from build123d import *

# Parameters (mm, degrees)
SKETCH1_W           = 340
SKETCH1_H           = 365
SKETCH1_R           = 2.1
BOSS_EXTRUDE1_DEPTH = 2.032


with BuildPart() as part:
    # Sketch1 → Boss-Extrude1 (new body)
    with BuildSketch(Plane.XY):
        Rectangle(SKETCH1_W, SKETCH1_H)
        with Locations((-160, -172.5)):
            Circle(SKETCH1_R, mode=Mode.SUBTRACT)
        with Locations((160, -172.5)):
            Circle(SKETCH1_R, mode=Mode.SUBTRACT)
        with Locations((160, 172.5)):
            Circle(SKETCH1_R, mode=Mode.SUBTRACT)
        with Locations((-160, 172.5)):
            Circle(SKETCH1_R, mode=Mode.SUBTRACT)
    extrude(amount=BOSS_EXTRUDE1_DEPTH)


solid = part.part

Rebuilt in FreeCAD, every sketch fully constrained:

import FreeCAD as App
import Part
import Sketcher

V = App.Vector
Q = App.Units.Quantity

doc = App.newDocument("Part")
params = doc.addObject("Spreadsheet::Sheet", "Params")
for row, (alias, value) in enumerate([
    ("sketch1_diameter", "4.2 mm"),
    ("sketch1_width", "340 mm"),
    ("sketch1_height", "365 mm"),
    ("pad1_length", "2.032 mm"),
], start=1):
    params.set(f"A{row}", alias)
    params.set(f"B{row}", "=" + value)
    params.setAlias(f"B{row}", alias)

body = doc.addObject("PartDesign::Body", "Body")

# Sketch on XY plane
sketch1 = body.newObject("Sketcher::SketchObject", "Sketch")
sketch1.AttachmentSupport = (doc.getObject("XY_Plane"), [""])
sketch1.MapMode = "FlatFace"
sketch1.addGeometry([
    Part.LineSegment(V(-170, 182.5, 0), V(-170, -182.5, 0)),  # 0
    Part.LineSegment(V(-170, -182.5, 0), V(170, -182.5, 0)),  # 1
    Part.LineSegment(V(170, -182.5, 0), V(170, 182.5, 0)),  # 2
    Part.LineSegment(V(170, 182.5, 0), V(-170, 182.5, 0)),  # 3
    Part.Circle(V(-160, -172.5, 0), V(0, 0, 1), 2.1),  # 4
    Part.Circle(V(160, -172.5, 0), V(0, 0, 1), 2.1),  # 5
    Part.Circle(V(-160, 172.5, 0), V(0, 0, 1), 2.1),  # 6
    Part.Circle(V(160, 172.5, 0), V(0, 0, 1), 2.1),  # 7
], False)
sketch1.addConstraint([
    Sketcher.Constraint("Coincident", 0, 2, 1, 1),
    Sketcher.Constraint("Coincident", 1, 2, 2, 1),
    Sketcher.Constraint("Coincident", 2, 2, 3, 1),
    Sketcher.Constraint("Coincident", 3, 2, 0, 1),
    Sketcher.Constraint("Vertical", 0),
    Sketcher.Constraint("Horizontal", 1),
    Sketcher.Constraint("Vertical", 2),
    Sketcher.Constraint("Horizontal", 3),
    Sketcher.Constraint("Equal", 4, 5),
    Sketcher.Constraint("Equal", 5, 6),
    Sketcher.Constraint("Equal", 6, 7),
    Sketcher.Constraint("Symmetric", 5, 3, 6, 3, -1, 1),
    Sketcher.Constraint("Symmetric", 4, 3, 7, 3, -1, 1),
    Sketcher.Constraint("Symmetric", 0, 2, 2, 2, -1, 1),
    Sketcher.Constraint("Symmetric", 4, 3, 5, 3, -2),
    Sketcher.Constraint("Diameter", 4, Q("4.2 mm")),
    Sketcher.Constraint("DistanceX", 1, 1, 1, 2, Q("340 mm")),
    Sketcher.Constraint("DistanceY", 0, 2, 0, 1, Q("365 mm")),
    Sketcher.Constraint("DistanceX", 4, 3, -1, 1, Q("160 mm")),
    Sketcher.Constraint("DistanceY", 4, 3, 6, 3, Q("345 mm")),
])
sketch1.setExpression("Constraints[15]", "Params.sketch1_diameter")
sketch1.setExpression("Constraints[16]", "Params.sketch1_width")
sketch1.setExpression("Constraints[17]", "Params.sketch1_height")
pad1 = body.newObject("PartDesign::Pad", "Pad")
pad1.Profile = sketch1
pad1.setExpression("Length", "Params.pad1_length")

doc.recompute()
